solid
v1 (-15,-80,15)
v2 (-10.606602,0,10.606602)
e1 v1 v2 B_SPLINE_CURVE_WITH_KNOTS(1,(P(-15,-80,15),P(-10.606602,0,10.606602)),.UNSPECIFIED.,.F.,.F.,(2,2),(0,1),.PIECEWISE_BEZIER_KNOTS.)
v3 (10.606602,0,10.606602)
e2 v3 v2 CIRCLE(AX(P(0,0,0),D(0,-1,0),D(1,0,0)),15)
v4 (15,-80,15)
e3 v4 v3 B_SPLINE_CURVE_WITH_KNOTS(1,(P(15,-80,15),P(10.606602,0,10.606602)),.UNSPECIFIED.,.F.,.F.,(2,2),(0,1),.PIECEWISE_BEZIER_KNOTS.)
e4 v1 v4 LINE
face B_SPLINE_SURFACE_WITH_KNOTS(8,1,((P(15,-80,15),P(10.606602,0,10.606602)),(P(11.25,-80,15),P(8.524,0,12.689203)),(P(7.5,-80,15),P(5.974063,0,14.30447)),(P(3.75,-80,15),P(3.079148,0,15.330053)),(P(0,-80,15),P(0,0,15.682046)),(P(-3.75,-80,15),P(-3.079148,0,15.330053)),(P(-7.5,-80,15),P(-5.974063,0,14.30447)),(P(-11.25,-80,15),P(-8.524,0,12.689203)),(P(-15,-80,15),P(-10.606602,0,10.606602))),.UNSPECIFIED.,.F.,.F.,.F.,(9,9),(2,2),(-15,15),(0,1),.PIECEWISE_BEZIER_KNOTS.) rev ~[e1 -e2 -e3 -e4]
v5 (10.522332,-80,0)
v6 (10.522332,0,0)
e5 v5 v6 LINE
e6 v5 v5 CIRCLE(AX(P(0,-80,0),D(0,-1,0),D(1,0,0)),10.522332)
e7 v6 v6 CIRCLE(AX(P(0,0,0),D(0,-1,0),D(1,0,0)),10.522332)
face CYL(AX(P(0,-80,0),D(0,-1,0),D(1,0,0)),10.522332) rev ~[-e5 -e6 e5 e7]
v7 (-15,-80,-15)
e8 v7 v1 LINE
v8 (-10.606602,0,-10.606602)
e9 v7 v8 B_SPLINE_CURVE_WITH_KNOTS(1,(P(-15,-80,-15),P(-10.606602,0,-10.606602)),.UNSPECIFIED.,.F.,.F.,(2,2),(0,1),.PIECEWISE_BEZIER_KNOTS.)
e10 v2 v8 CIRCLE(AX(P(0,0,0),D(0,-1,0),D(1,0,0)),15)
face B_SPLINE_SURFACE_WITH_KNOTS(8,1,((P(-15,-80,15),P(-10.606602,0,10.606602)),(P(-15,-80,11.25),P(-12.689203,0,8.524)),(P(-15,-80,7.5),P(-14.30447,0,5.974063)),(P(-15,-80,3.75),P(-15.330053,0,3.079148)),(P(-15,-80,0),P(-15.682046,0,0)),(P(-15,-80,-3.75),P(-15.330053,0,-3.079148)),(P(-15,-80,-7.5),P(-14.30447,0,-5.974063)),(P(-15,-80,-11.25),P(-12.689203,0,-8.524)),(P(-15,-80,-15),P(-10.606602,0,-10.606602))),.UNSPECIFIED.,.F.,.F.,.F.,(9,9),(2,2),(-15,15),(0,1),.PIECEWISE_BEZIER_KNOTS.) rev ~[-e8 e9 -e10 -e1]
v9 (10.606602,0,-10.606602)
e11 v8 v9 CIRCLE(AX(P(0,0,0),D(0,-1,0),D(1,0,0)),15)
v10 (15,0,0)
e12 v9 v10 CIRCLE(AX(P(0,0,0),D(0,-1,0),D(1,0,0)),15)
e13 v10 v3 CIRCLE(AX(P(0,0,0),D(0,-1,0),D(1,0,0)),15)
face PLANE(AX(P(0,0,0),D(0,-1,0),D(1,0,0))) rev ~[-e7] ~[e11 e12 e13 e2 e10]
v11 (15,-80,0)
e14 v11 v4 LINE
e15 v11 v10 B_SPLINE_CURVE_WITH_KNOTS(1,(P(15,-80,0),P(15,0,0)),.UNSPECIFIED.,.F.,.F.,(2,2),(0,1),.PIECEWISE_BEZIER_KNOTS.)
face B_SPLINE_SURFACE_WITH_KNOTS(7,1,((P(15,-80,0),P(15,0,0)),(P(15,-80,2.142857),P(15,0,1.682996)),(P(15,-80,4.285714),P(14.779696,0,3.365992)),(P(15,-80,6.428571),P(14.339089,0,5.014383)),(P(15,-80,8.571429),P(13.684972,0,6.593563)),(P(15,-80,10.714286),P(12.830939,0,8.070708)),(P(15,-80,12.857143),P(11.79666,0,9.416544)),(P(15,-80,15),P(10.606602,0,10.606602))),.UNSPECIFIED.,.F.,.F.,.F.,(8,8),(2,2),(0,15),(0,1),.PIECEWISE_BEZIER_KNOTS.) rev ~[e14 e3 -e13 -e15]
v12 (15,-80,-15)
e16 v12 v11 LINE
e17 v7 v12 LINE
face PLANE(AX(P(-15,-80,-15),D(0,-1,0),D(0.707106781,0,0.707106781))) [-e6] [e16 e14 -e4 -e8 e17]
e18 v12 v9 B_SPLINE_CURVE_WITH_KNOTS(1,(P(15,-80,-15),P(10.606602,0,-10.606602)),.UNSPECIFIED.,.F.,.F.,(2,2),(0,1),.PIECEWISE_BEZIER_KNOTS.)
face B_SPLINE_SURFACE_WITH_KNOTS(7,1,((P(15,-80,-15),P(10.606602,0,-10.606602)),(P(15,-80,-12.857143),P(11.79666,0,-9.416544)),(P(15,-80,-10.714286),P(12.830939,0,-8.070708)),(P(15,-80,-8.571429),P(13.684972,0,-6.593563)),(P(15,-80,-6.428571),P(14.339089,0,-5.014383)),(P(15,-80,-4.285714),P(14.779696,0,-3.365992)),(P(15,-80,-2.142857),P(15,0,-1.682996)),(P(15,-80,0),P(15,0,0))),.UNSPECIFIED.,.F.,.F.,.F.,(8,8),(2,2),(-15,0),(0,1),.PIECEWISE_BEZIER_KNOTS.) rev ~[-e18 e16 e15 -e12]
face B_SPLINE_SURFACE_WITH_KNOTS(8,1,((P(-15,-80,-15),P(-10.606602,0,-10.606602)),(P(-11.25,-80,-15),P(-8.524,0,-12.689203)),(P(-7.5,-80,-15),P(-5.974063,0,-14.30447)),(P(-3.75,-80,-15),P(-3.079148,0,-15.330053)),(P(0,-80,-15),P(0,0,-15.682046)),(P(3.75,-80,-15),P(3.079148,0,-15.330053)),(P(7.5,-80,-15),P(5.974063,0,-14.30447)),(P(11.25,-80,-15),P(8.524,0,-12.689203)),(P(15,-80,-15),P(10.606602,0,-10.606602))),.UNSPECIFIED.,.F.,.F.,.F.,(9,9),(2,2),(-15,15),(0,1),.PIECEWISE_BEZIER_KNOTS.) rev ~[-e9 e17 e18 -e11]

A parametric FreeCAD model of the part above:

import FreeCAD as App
import Part
import Sketcher
Q = App.Units.Quantity


def add_polygon(sketch, points):
    """Adds a closed chain of lines whose ends are joined by coincident constraints."""
    first, n = sketch.GeometryCount, len(points)
    for a, b in zip(points, points[1:] + points[:1]):
        sketch.addGeometry(Part.LineSegment(App.Vector(*a, 0), App.Vector(*b, 0)), False)
    for i in range(n):
        sketch.addConstraint(Sketcher.Constraint("Coincident", first + i, 2, first + (i + 1) % n, 1))

doc = App.newDocument("Part")
body = doc.addObject("PartDesign::Body", "Body")

sketch1 = body.newObject("Sketcher::SketchObject", "Sketch")
sketch1.AttachmentSupport = (doc.getObject("XZ_Plane"), [""])
sketch1.MapMode = "FlatFace"
sketch1.AttachmentOffset = App.Placement(App.Vector(0, 0, 80), App.Rotation())
add_polygon(sketch1, [(-15, 15), (-15, -15), (15, -15), (15, 15)])
sketch1.addConstraint([
    Sketcher.Constraint("Vertical", 0),
    Sketcher.Constraint("Horizontal", 1),
    Sketcher.Constraint("Vertical", 2),
    Sketcher.Constraint("Horizontal", 3),
    Sketcher.Constraint("Symmetric", 0, 2, 2, 2, -1, 1),
    Sketcher.Constraint("Equal", 3, 0),
    Sketcher.Constraint("DistanceX", 1, 1, 1, 2, Q("30 mm")),
])

sketch2 = body.newObject("Sketcher::SketchObject", "Sketch001")
sketch2.AttachmentSupport = (doc.getObject("XZ_Plane"), [""])
sketch2.MapMode = "FlatFace"
sketch2.addGeometry(Part.Circle(App.Vector(0, 0, 0), App.Vector(0, 0, 1), 15), False)
sketch2.addConstraint([
    Sketcher.Constraint("Coincident", 0, 3, -1, 1),
    Sketcher.Constraint("Diameter", 0, Q("30 mm")),
])

additiveloft = body.newObject("PartDesign::AdditiveLoft", "AdditiveLoft")
additiveloft.Profile = sketch1
additiveloft.Sections = [sketch2]

sketch3 = body.newObject("Sketcher::SketchObject", "Sketch002")
sketch3.AttachmentSupport = (doc.getObject("XZ_Plane"), [""])
sketch3.MapMode = "FlatFace"
sketch3.AttachmentOffset = App.Placement(App.Vector(0, 0, 80), App.Rotation())
sketch3.addGeometry(Part.Circle(App.Vector(0, 0, 0), App.Vector(0, 0, 1), 11), False)
sketch3.addConstraint([
    Sketcher.Constraint("Coincident", 0, 3, -1, 1),
    Sketcher.Constraint("Diameter", 0, Q("21.044664 mm")),
])
pocket1 = body.newObject("PartDesign::Pocket", "Pocket")
pocket1.Profile = sketch3
pocket1.Type = "ThroughAll"

doc.recompute()
